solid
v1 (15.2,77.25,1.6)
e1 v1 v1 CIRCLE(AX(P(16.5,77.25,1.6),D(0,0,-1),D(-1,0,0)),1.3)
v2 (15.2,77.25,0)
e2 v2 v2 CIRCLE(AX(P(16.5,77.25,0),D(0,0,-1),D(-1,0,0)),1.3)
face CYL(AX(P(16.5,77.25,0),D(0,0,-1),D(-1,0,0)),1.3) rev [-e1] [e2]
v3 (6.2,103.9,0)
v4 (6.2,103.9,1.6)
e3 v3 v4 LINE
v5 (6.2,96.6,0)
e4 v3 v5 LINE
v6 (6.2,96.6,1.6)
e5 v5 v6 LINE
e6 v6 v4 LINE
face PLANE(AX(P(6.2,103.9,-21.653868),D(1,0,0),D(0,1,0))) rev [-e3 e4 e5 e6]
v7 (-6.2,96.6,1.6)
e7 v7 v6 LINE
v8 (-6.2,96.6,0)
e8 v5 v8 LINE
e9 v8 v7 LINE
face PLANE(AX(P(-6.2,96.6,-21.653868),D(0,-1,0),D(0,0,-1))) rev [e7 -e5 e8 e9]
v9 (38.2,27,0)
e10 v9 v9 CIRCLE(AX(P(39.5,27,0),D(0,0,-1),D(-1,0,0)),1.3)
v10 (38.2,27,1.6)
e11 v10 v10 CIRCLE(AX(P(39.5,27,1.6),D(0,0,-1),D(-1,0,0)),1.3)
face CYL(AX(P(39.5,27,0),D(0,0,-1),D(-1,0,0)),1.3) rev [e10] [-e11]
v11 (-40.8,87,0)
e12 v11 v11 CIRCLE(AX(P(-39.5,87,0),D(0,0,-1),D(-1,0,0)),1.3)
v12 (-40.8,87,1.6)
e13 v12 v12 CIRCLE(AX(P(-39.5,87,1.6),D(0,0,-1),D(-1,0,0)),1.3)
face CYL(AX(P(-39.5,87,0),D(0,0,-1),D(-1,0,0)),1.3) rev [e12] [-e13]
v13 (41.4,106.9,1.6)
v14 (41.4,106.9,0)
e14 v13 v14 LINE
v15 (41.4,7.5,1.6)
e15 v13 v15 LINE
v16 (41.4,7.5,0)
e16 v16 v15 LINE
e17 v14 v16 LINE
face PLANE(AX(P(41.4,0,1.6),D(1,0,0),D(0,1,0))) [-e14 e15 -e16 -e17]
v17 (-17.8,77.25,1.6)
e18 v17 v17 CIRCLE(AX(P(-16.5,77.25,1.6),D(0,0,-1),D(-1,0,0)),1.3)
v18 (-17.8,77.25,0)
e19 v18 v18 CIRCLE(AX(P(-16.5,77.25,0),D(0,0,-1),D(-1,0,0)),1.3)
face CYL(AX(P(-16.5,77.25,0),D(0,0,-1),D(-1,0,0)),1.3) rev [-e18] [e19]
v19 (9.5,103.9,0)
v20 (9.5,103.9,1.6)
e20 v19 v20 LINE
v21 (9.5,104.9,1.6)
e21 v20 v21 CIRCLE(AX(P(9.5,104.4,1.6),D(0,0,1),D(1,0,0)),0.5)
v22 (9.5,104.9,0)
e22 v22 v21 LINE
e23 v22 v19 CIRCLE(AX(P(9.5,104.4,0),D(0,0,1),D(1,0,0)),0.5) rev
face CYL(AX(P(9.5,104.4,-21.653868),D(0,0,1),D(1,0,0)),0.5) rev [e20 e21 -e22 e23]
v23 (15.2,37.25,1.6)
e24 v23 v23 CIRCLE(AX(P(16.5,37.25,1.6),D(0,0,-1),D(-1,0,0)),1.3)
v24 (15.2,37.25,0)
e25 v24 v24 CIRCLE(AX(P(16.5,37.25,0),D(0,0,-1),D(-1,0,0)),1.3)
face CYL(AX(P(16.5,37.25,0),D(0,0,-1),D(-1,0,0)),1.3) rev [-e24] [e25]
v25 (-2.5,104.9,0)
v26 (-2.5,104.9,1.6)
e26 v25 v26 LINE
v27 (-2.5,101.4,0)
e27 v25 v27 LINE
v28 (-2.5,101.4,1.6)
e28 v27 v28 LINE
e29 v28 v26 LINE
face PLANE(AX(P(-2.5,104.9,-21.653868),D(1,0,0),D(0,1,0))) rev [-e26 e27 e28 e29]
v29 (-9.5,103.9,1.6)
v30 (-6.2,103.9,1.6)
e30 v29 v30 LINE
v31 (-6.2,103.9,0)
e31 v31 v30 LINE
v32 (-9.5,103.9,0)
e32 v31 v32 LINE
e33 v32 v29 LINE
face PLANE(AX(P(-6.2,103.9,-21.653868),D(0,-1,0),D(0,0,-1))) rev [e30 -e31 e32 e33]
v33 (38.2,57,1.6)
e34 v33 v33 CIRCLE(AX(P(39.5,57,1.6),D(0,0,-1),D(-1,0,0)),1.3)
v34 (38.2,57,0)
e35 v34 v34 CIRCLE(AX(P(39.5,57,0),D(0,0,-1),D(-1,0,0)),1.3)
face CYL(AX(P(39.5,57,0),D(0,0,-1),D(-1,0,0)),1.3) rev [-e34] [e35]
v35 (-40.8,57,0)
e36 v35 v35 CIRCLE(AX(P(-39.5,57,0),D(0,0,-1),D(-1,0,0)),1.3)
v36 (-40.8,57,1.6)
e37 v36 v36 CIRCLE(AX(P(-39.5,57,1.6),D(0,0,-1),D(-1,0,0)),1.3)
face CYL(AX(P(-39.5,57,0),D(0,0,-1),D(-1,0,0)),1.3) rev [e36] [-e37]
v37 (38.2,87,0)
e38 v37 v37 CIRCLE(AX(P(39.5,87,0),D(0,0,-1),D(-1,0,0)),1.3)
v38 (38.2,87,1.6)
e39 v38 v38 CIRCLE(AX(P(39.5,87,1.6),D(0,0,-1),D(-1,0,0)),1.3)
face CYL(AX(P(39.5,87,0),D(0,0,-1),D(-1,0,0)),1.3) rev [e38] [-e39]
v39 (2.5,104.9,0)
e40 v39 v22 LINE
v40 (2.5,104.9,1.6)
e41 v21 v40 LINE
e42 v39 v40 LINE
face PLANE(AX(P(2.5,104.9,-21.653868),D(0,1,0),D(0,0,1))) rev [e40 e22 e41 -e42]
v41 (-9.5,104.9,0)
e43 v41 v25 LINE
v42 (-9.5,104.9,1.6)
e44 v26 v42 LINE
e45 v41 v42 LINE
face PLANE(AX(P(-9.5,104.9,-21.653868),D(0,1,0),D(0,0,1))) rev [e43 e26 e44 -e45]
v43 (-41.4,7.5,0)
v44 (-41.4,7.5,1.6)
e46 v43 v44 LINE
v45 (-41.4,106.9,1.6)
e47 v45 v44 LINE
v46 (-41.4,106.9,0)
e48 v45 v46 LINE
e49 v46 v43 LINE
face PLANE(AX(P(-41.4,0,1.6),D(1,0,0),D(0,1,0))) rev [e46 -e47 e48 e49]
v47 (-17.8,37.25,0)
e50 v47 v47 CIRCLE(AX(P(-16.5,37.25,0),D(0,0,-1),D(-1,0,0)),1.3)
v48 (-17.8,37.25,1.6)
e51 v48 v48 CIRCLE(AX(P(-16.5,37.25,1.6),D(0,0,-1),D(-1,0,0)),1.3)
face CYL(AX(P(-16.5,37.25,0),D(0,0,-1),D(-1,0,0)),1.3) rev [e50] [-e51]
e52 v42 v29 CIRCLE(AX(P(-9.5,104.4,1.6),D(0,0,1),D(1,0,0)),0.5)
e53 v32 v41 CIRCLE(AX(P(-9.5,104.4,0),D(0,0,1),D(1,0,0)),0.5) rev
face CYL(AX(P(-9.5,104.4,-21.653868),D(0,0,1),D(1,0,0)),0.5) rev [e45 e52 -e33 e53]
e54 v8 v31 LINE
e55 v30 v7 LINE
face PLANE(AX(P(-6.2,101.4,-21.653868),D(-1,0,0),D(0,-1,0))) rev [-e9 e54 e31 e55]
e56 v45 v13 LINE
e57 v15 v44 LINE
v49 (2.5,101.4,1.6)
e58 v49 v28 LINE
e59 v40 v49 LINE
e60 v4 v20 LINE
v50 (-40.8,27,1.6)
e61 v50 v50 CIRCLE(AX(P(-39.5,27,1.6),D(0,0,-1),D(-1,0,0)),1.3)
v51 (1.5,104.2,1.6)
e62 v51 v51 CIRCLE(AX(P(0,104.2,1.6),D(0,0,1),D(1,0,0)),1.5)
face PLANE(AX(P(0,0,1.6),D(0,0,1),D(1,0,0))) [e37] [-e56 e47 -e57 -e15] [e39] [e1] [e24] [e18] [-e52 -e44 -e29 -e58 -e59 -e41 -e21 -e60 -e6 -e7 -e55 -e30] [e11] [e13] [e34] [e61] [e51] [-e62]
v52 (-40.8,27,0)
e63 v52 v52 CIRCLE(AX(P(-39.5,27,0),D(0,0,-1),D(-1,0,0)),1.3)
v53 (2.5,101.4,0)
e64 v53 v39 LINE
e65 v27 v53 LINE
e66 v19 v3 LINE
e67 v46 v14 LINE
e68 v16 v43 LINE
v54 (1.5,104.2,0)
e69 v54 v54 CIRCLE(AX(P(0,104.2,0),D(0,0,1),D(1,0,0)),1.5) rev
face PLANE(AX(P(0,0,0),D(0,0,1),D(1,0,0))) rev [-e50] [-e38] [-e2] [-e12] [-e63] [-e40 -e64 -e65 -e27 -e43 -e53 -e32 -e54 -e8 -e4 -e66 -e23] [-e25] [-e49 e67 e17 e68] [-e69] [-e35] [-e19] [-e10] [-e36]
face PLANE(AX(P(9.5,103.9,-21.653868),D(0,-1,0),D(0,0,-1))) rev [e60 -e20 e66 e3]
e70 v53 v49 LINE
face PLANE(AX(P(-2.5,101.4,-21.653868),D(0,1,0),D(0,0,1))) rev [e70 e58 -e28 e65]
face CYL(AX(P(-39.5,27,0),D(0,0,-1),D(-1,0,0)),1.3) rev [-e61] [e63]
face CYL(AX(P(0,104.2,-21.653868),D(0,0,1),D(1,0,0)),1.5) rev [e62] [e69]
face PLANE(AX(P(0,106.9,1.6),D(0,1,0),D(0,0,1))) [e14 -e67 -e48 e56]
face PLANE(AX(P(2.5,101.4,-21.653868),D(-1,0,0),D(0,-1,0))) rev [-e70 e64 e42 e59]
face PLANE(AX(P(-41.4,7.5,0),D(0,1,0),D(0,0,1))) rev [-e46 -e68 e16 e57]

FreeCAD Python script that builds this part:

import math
import FreeCAD as App
import Part
import Sketcher
from FreeCAD import Vector
Q = App.Units.Quantity

doc = App.newDocument("Part")
body = doc.addObject("PartDesign::Body", "Body")

# Sketch on XY plane
sketch1 = doc.addObject("Sketcher::SketchObject", "Sketch")
body.addObject(sketch1)
sketch1.AttachmentSupport = (doc.XY_Plane, [""])
sketch1.MapMode = "FlatFace"
sketch1.addGeometry([
    Part.LineSegment(Vector(-41.4, 106.9, 0), Vector(-41.4, -106.9, 0)),  # 0
    Part.LineSegment(Vector(-41.4, -106.9, 0), Vector(41.4, -106.9, 0)),  # 1
    Part.LineSegment(Vector(41.4, -106.9, 0), Vector(41.4, 106.9, 0)),  # 2
    Part.LineSegment(Vector(41.4, 106.9, 0), Vector(-41.4, 106.9, 0)),  # 3
    Part.Circle(Vector(-39.5, -87, 0), Vector(0, 0, 1), 0.8),  # 4
    Part.Circle(Vector(-39.5, -57, 0), Vector(0, 0, 1), 0.8),  # 5
    Part.Circle(Vector(-39.5, -27, 0), Vector(0, 0, 1), 0.8),  # 6
    Part.Circle(Vector(0, -104.2, 0), Vector(0, 0, 1), 0.8),  # 7
    Part.Circle(Vector(39.5, -87, 0), Vector(0, 0, 1), 0.8),  # 8
    Part.Circle(Vector(39.5, -57, 0), Vector(0, 0, 1), 0.8),  # 9
    Part.Circle(Vector(39.5, -27, 0), Vector(0, 0, 1), 0.8),  # 10
    Part.Circle(Vector(-39.5, 27, 0), Vector(0, 0, 1), 0.8),  # 11
    Part.Circle(Vector(-39.5, 57, 0), Vector(0, 0, 1), 0.8),  # 12
    Part.Circle(Vector(-39.5, 87, 0), Vector(0, 0, 1), 0.8),  # 13
    Part.Circle(Vector(39.5, 27, 0), Vector(0, 0, 1), 0.8),  # 14
    Part.Circle(Vector(0, 104.2, 0), Vector(0, 0, 1), 0.8),  # 15
    Part.Circle(Vector(39.5, 57, 0), Vector(0, 0, 1), 0.8),  # 16
    Part.Circle(Vector(39.5, 87, 0), Vector(0, 0, 1), 0.8),  # 17
], False)
sketch1.addConstraint([
    Sketcher.Constraint("Coincident", 0, 2, 1, 1),
    Sketcher.Constraint("Coincident", 1, 2, 2, 1),
    Sketcher.Constraint("Coincident", 2, 2, 3, 1),
    Sketcher.Constraint("Coincident", 3, 2, 0, 1),
    Sketcher.Constraint("Vertical", 0),
    Sketcher.Constraint("Horizontal", 1),
    Sketcher.Constraint("Vertical", 2),
    Sketcher.Constraint("Horizontal", 3),
    Sketcher.Constraint("Equal", 4, 5),
    Sketcher.Constraint("Equal", 5, 6),
    Sketcher.Constraint("Equal", 6, 7),
    Sketcher.Constraint("Equal", 7, 8),
    Sketcher.Constraint("Equal", 8, 9),
    Sketcher.Constraint("Equal", 9, 10),
    Sketcher.Constraint("Equal", 10, 11),
    Sketcher.Constraint("Equal", 11, 12),
    Sketcher.Constraint("Equal", 12, 13),
    Sketcher.Constraint("Equal", 13, 14),
    Sketcher.Constraint("Equal", 14, 15),
    Sketcher.Constraint("Equal", 15, 16),
    Sketcher.Constraint("Equal", 16, 17),
    Sketcher.Constraint("Symmetric", 10, 3, 11, 3, -1, 1),
    Sketcher.Constraint("Symmetric", 9, 3, 12, 3, -1, 1),
    Sketcher.Constraint("Symmetric", 8, 3, 13, 3, -1, 1),
    Sketcher.Constraint("Symmetric", 6, 3, 14, 3, -1, 1),
    Sketcher.Constraint("Symmetric", 7, 3, 15, 3, -1, 1),
    Sketcher.Constraint("Symmetric", 5, 3, 16, 3, -1, 1),
    Sketcher.Constraint("Symmetric", 4, 3, 17, 3, -1, 1),
    Sketcher.Constraint("Symmetric", 0, 2, 2, 2, -1, 1),
    Sketcher.Constraint("Symmetric", 4, 3, 8, 3, -2),
    Sketcher.Constraint("Symmetric", 5, 3, 9, 3, -2),
    Sketcher.Constraint("Symmetric", 6, 3, 10, 3, -2),
    Sketcher.Constraint("PointOnObject", 7, 3, -2),
    Sketcher.Constraint("Vertical", 4, 3, 5, 3),
    Sketcher.Constraint("Vertical", 5, 3, 6, 3),
    Sketcher.Constraint("Diameter", 4, Q("1.6 mm")),
    Sketcher.Constraint("DistanceX", 1, 1, 1, 2, Q("82.8 mm")),
    Sketcher.Constraint("DistanceY", 0, 2, 0, 1, Q("213.8 mm")),
    Sketcher.Constraint("DistanceY", 4, 3, -1, 1, Q("87 mm")),
    Sketcher.Constraint("DistanceY", 5, 3, -1, 1, Q("57 mm")),
    Sketcher.Constraint("DistanceY", 6, 3, -1, 1, Q("27 mm")),
    Sketcher.Constraint("DistanceX", 4, 3, 8, 3, Q("79 mm")),
    Sketcher.Constraint("DistanceY", 7, 3, -1, 1, Q("104.2 mm")),
])
pad1 = doc.addObject("PartDesign::Pad", "Pad")
body.addObject(pad1)
pad1.Profile = sketch1
pad1.Length = 1.6

# Sketch on XY plane
sketch2 = doc.addObject("Sketcher::SketchObject", "Sketch001")
body.addObject(sketch2)
sketch2.AttachmentSupport = (doc.XY_Plane, [""])
sketch2.MapMode = "FlatFace"
sketch2.AttachmentOffset = App.Placement(Vector(0, 0, 1.6), App.Rotation())
sketch2.addGeometry([
    Part.Circle(Vector(0, 104.2, 0), Vector(0, 0, 1), 1.5),  # 0
    Part.LineSegment(Vector(2.5, 101.4, 0), Vector(-2.5, 101.4, 0)),  # 1
    Part.LineSegment(Vector(-2.5, 101.4, 0), Vector(-2.5, 104.9, 0)),  # 2
    Part.LineSegment(Vector(-2.5, 104.9, 0), Vector(-9.5, 104.9, 0)),  # 3
    Part.ArcOfCircle(Part.Circle(Vector(-9.5, 104.4, 0), Vector(0, 0, 1), 0.5), math.radians(90), math.radians(270)),  # 4
    Part.LineSegment(Vector(-9.5, 103.9, 0), Vector(-6.2, 103.9, 0)),  # 5
    Part.LineSegment(Vector(-6.2, 103.9, 0), Vector(-6.2, 96.6, 0)),  # 6
    Part.LineSegment(Vector(-6.2, 96.6, 0), Vector(6.2, 96.6, 0)),  # 7
    Part.LineSegment(Vector(6.2, 96.6, 0), Vector(6.2, 103.9, 0)),  # 8
    Part.LineSegment(Vector(6.2, 103.9, 0), Vector(9.5, 103.9, 0)),  # 9
    Part.ArcOfCircle(Part.Circle(Vector(9.5, 104.4, 0), Vector(0, 0, 1), 0.5), math.radians(-90), math.radians(90)),  # 10
    Part.LineSegment(Vector(9.5, 104.9, 0), Vector(2.5, 104.9, 0)),  # 11
    Part.LineSegment(Vector(2.5, 104.9, 0), Vector(2.5, 101.4, 0)),  # 12
], False)
sketch2.addConstraint([
    Sketcher.Constraint("Coincident", 1, 2, 2, 1),
    Sketcher.Constraint("Coincident", 2, 2, 3, 1),
    Sketcher.Constraint("Tangent", 3, 2, 4, 1),
    Sketcher.Constraint("Tangent", 4, 2, 5, 1),
    Sketcher.Constraint("Coincident", 5, 2, 6, 1),
    Sketcher.Constraint("Coincident", 6, 2, 7, 1),
    Sketcher.Constraint("Coincident", 7, 2, 8, 1),
    Sketcher.Constraint("Coincident", 8, 2, 9, 1),
    Sketcher.Constraint("Tangent", 9, 2, 10, 1),
    Sketcher.Constraint("Tangent", 10, 2, 11, 1),
    Sketcher.Constraint("Coincident", 11, 2, 12, 1),
    Sketcher.Constraint("Coincident", 12, 2, 1, 1),
    Sketcher.Constraint("Horizontal", 1),
    Sketcher.Constraint("Vertical", 2),
    Sketcher.Constraint("Horizontal", 3),
    Sketcher.Constraint("Horizontal", 5),
    Sketcher.Constraint("Vertical", 6),
    Sketcher.Constraint("Horizontal", 7),
    Sketcher.Constraint("Vertical", 8),
    Sketcher.Constraint("Horizontal", 9),
    Sketcher.Constraint("Horizontal", 11),
    Sketcher.Constraint("Vertical", 12),
    Sketcher.Constraint("Equal", 4, 10),
    Sketcher.Constraint("Symmetric", 4, 3, 10, 3, -2),
    Sketcher.Constraint("PointOnObject", 0, 3, -2),
    Sketcher.Constraint("Equal", 5, 9),
    Sketcher.Constraint("Equal", 3, 11),
    Sketcher.Constraint("Diameter", 0, Q("3 mm")),
    Sketcher.Constraint("Radius", 4, Q("0.5 mm")),
    Sketcher.Constraint("DistanceX", 1, 2, 1, 1, Q("5 mm")),
    Sketcher.Constraint("DistanceX", 3, 2, 3, 1, Q("7 mm")),
    Sketcher.Constraint("DistanceX", 5, 1, 5, 2, Q("3.3 mm")),
    Sketcher.Constraint("DistanceY", 2, 1, 2, 2, Q("3.5 mm")),
    Sketcher.Constraint("DistanceY", 6, 2, 6, 1, Q("7.3 mm")),
    Sketcher.Constraint("DistanceY", -1, 1, 0, 3, Q("104.2 mm")),
    Sketcher.Constraint("DistanceY", -1, 1, 4, 3, Q("104.4 mm")),
])
pocket1 = doc.addObject("PartDesign::Pocket", "Pocket")
body.addObject(pocket1)
pocket1.Profile = sketch2
pocket1.Length = 1.6

# Sketch on XY plane
sketch3 = doc.addObject("Sketcher::SketchObject", "Sketch002")
body.addObject(sketch3)
sketch3.AttachmentSupport = (doc.XY_Plane, [""])
sketch3.MapMode = "FlatFace"
sketch3.AttachmentOffset = App.Placement(Vector(0, 0, 1.6), App.Rotation())
sketch3.addGeometry([
    Part.LineSegment(Vector(-41.4, 7.5, 0), Vector(-41.4, -106.9, 0)),
    Part.LineSegment(Vector(-41.4, -106.9, 0), Vector(41.4, -106.9, 0)),
    Part.LineSegment(Vector(41.4, -106.9, 0), Vector(41.4, 7.5, 0)),
    Part.LineSegment(Vector(41.4, 7.5, 0), Vector(-41.4, 7.5, 0)),
], False)
sketch3.addConstraint([
    Sketcher.Constraint("Coincident", 0, 2, 1, 1),
    Sketcher.Constraint("Coincident", 1, 2, 2, 1),
    Sketcher.Constraint("Coincident", 2, 2, 3, 1),
    Sketcher.Constraint("Coincident", 3, 2, 0, 1),
    Sketcher.Constraint("Vertical", 0),
    Sketcher.Constraint("Horizontal", 1),
    Sketcher.Constraint("Vertical", 2),
    Sketcher.Constraint("Horizontal", 3),
    Sketcher.Constraint("DistanceX", 1, 1, 1, 2, Q("82.8 mm")),
    Sketcher.Constraint("DistanceY", 0, 2, 0, 1, Q("114.4 mm")),
    Sketcher.Constraint("DistanceX", 0, 2, -1, 1, Q("41.4 mm")),
    Sketcher.Constraint("DistanceY", 0, 2, -1, 1, Q("106.9 mm")),
])
pocket2 = doc.addObject("PartDesign::Pocket", "Pocket001")
body.addObject(pocket2)
pocket2.Profile = sketch3
pocket2.Type = "ThroughAll"
pocket2.Midplane = True

# Sketch on XY plane
sketch4 = doc.addObject("Sketcher::SketchObject", "Sketch003")
body.addObject(sketch4)
sketch4.AttachmentSupport = (doc.XY_Plane, [""])
sketch4.MapMode = "FlatFace"
sketch4.addGeometry([
    Part.Circle(Vector(-39.5, 87, 0), Vector(0, 0, 1), 1.3),  # 0
    Part.Circle(Vector(39.5, 87, 0), Vector(0, 0, 1), 1.3),  # 1
    Part.Circle(Vector(-39.5, 57, 0), Vector(0, 0, 1), 1.3),  # 2
    Part.Circle(Vector(39.5, 57, 0), Vector(0, 0, 1), 1.3),  # 3
    Part.Circle(Vector(-39.5, 27, 0), Vector(0, 0, 1), 1.3),  # 4
    Part.Circle(Vector(39.5, 27, 0), Vector(0, 0, 1), 1.3),  # 5
    Part.Circle(Vector(-16.5, 77.25, 0), Vector(0, 0, 1), 1.3),  # 6
    Part.Circle(Vector(16.5, 77.25, 0), Vector(0, 0, 1), 1.3),  # 7
    Part.Circle(Vector(16.5, 37.25, 0), Vector(0, 0, 1), 1.3),  # 8
    Part.Circle(Vector(-16.5, 37.25, 0), Vector(0, 0, 1), 1.3),  # 9
], False)
sketch4.addConstraint([
    Sketcher.Constraint("Equal", 0, 1),
    Sketcher.Constraint("Equal", 1, 2),
    Sketcher.Constraint("Equal", 2, 3),
    Sketcher.Constraint("Equal", 3, 4),
    Sketcher.Constraint("Equal", 4, 5),
    Sketcher.Constraint("Equal", 5, 6),
    Sketcher.Constraint("Equal", 6, 7),
    Sketcher.Constraint("Equal", 7, 8),
    Sketcher.Constraint("Equal", 8, 9),
    Sketcher.Constraint("Symmetric", 0, 3, 1, 3, -2),
    Sketcher.Constraint("Symmetric", 2, 3, 3, 3, -2),
    Sketcher.Constraint("Symmetric", 4, 3, 5, 3, -2),
    Sketcher.Constraint("Symmetric", 6, 3, 7, 3, -2),
    Sketcher.Constraint("Symmetric", 8, 3, 9, 3, -2),
    Sketcher.Constraint("Vertical", 0, 3, 2, 3),
    Sketcher.Constraint("Vertical", 2, 3, 4, 3),
    Sketcher.Constraint("Vertical", 7, 3, 8, 3),
    Sketcher.Constraint("Diameter", 0, Q("2.6 mm")),
    Sketcher.Constraint("DistanceY", -1, 1, 0, 3, Q("87 mm")),
    Sketcher.Constraint("DistanceY", -1, 1, 2, 3, Q("57 mm")),
    Sketcher.Constraint("DistanceY", -1, 1, 4, 3, Q("27 mm")),
    Sketcher.Constraint("DistanceX", 0, 3, 1, 3, Q("79 mm")),
    Sketcher.Constraint("DistanceX", 0, 3, 6, 3, Q("23 mm")),
    Sketcher.Constraint("DistanceY", 8, 3, 7, 3, Q("40 mm")),
    Sketcher.Constraint("DistanceY", -1, 1, 6, 3, Q("77.25 mm")),
])
doc.recompute()
hole = doc.addObject("PartDesign::Hole", "Hole")
body.addObject(hole)
hole.Profile = sketch4
hole.ThreadType = "None"
hole.Diameter = 2.6
hole.DepthType = "ThroughAll"
hole.Reversed = True

doc.recompute()
